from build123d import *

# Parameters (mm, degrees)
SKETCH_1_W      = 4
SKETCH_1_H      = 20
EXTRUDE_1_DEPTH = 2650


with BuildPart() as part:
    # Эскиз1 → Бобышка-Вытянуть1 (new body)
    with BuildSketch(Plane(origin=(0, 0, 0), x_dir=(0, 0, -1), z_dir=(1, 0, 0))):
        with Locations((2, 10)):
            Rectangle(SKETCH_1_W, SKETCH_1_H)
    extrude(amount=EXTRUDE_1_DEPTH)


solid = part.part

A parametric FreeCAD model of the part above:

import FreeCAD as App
import Part
import Sketcher


def add_polygon(sketch, points):
    """Adds a closed chain of lines whose ends are joined by coincident constraints."""
    first, n = sketch.GeometryCount, len(points)
    for a, b in zip(points, points[1:] + points[:1]):
        sketch.addGeometry(Part.LineSegment(App.Vector(*a, 0), App.Vector(*b, 0)), False)
    for i in range(n):
        sketch.addConstraint(Sketcher.Constraint("Coincident", first + i, 2, first + (i + 1) % n, 1))

doc = App.newDocument("Part")
body = doc.addObject("PartDesign::Body", "Body")

# Sketch on YZ plane
sketch1 = body.newObject("Sketcher::SketchObject", "Sketch")
sketch1.AttachmentSupport = (doc.getObject("YZ_Plane"), [""])
sketch1.MapMode = "FlatFace"
add_polygon(sketch1, [(20, 0), (0, 0), (0, -4), (20, -4)])  # lines 0-3
sketch1.addConstraint([
    Sketcher.Constraint("Horizontal", 0),
    Sketcher.Constraint("Vertical", 1),
    Sketcher.Constraint("Horizontal", 2),
    Sketcher.Constraint("Vertical", 3),
    Sketcher.Constraint("Coincident", 0, 2, -1, 1),
    Sketcher.Constraint("DistanceX", 0, 2, 0, 1, 20.0),
    Sketcher.Constraint("DistanceY", 1, 2, 1, 1, 4.0),
])
pad1 = body.newObject("PartDesign::Pad", "Pad")
pad1.Profile = sketch1
pad1.Length = 2650

doc.recompute()
